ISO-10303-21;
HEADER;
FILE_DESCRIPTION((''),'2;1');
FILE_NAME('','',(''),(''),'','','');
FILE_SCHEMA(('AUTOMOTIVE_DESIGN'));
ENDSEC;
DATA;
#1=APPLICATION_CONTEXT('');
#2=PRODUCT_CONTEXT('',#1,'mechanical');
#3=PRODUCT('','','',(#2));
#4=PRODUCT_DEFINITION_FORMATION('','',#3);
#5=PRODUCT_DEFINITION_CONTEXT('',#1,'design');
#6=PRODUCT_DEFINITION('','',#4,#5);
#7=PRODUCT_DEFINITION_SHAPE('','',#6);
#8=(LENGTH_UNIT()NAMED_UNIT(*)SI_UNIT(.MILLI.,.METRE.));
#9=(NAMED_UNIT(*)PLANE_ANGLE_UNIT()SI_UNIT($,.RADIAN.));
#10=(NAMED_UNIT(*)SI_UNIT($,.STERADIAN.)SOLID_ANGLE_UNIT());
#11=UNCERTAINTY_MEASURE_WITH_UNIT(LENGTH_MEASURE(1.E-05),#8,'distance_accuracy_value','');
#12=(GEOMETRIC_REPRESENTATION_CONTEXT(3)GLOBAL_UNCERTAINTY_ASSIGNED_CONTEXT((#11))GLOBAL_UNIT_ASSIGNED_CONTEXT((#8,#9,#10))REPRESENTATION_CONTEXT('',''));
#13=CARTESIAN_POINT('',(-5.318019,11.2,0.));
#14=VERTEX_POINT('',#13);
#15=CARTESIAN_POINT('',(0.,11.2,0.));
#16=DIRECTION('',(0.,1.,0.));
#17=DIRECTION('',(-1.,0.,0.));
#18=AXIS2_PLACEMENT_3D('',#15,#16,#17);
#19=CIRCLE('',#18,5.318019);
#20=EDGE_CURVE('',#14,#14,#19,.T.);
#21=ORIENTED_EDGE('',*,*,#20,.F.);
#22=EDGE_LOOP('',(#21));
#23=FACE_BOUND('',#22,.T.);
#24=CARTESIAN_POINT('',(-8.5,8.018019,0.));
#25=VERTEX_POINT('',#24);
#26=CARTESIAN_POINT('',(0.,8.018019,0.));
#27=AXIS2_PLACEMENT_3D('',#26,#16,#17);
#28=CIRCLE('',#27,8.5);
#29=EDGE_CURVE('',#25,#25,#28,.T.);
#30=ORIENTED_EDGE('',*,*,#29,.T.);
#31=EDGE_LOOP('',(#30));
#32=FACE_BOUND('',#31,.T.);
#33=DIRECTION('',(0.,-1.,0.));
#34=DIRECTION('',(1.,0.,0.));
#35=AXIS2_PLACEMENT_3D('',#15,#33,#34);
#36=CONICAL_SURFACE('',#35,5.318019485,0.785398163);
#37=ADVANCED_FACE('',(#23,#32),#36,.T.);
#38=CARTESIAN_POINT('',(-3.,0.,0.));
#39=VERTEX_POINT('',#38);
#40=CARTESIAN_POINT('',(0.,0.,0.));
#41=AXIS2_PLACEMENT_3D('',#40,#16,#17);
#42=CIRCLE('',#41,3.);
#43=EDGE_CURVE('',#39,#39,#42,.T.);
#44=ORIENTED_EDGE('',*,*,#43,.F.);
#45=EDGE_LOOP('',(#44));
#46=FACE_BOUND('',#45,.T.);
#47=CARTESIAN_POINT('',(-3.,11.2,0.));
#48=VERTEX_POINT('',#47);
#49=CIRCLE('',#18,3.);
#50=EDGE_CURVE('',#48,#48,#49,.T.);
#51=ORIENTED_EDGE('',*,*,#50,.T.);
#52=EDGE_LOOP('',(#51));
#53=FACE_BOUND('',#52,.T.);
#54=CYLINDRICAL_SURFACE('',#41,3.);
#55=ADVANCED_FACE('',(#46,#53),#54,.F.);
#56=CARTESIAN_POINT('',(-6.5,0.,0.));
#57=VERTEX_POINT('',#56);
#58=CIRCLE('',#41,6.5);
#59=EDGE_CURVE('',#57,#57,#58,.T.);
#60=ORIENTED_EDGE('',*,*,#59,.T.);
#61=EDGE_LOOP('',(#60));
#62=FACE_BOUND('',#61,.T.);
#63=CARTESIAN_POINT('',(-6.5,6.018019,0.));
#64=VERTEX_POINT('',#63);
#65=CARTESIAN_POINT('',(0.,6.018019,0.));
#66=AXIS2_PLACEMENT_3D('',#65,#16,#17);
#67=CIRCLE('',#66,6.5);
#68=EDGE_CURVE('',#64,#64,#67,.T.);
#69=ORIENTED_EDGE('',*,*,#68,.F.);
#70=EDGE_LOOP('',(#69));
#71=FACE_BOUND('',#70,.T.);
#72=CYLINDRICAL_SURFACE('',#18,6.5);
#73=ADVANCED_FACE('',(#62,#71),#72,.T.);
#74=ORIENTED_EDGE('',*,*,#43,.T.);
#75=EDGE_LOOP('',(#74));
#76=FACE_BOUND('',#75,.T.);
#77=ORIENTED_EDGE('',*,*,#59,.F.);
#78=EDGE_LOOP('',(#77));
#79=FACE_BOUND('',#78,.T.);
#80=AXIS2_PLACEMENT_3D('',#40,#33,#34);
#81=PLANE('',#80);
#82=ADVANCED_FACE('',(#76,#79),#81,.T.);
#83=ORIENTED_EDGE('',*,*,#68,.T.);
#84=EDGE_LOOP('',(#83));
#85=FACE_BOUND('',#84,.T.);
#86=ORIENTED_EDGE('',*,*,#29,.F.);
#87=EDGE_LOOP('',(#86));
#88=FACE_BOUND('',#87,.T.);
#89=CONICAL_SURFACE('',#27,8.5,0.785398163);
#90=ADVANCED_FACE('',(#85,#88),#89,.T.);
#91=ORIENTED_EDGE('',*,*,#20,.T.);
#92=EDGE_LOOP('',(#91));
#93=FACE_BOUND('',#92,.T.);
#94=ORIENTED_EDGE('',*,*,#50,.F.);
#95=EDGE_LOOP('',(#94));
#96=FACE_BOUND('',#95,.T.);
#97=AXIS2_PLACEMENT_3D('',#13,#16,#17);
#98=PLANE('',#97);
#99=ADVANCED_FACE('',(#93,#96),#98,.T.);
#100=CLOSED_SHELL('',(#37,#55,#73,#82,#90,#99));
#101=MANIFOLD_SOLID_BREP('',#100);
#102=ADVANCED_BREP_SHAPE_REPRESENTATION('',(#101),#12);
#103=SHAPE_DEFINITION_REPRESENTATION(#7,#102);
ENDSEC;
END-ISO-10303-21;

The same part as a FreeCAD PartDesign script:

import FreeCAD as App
import Part
import Sketcher
Q = App.Units.Quantity


def add_polygon(sketch, points):
    """Adds a closed chain of lines whose ends are joined by coincident constraints."""
    first, n = sketch.GeometryCount, len(points)
    for a, b in zip(points, points[1:] + points[:1]):
        sketch.addGeometry(Part.LineSegment(App.Vector(*a, 0), App.Vector(*b, 0)), False)
    for i in range(n):
        sketch.addConstraint(Sketcher.Constraint("Coincident", first + i, 2, first + (i + 1) % n, 1))

doc = App.newDocument("Part")
body = doc.addObject("PartDesign::Body", "Body")

sketch1 = doc.addObject("Sketcher::SketchObject", "Sketch")
body.addObject(sketch1)
sketch1.AttachmentSupport = (doc.XY_Plane, [""])
sketch1.MapMode = "FlatFace"
add_polygon(sketch1, [(-6.5, 0), (0, 0), (0, 11.2), (-5.3, 11.2), (-8.5, 8), (-6.5, 6)])
sketch1.addConstraint(Sketcher.Constraint("Horizontal", 0))
sketch1.addConstraint(Sketcher.Constraint("Vertical", 1))
sketch1.addConstraint(Sketcher.Constraint("Horizontal", 2))
sketch1.addConstraint(Sketcher.Constraint("Vertical", 5))
sketch1.addConstraint(Sketcher.Constraint("Coincident", 0, 2, -1, 1))
sketch1.addConstraint(Sketcher.Constraint("Perpendicular", 3, 4))
sketch1.addConstraint(Sketcher.Constraint("Angle", 3, Q("-135 deg")))
sketch1.addConstraint(Sketcher.Constraint("DistanceX", 0, 1, 0, 2, 6.5))
sketch1.addConstraint(Sketcher.Constraint("DistanceY", 1, 1, 1, 2, 11.2))
sketch1.addConstraint(Sketcher.Constraint("DistanceX", 3, 2, 4, 2, 2.0))
sketch1.addConstraint(Sketcher.Constraint("Distance", 3, 4.5))
revolution = doc.addObject("PartDesign::Revolution", "Revolution")
body.addObject(revolution)
revolution.Profile = sketch1
revolution.ReferenceAxis = (sketch1, ["V_Axis"])
revolution.Angle = 360

sketch2 = doc.addObject("Sketcher::SketchObject", "Sketch001")
body.addObject(sketch2)
sketch2.AttachmentSupport = (doc.XZ_Plane, [""])
sketch2.MapMode = "FlatFace"
sketch2.AttachmentOffset = App.Placement(App.Vector(0, 0, -11.2), App.Rotation())
sketch2.addGeometry(Part.Circle(App.Vector(0, 0, 0), App.Vector(0, 0, 1), 3), False)
sketch2.addConstraint(Sketcher.Constraint("Coincident", 0, 3, -1, 1))
sketch2.addConstraint(Sketcher.Constraint("Diameter", 0, 6.0))
pocket1 = doc.addObject("PartDesign::Pocket", "Pocket")
body.addObject(pocket1)
pocket1.Profile = sketch2
pocket1.Type = "ThroughAll"
pocket1.Reversed = True

doc.recompute()
